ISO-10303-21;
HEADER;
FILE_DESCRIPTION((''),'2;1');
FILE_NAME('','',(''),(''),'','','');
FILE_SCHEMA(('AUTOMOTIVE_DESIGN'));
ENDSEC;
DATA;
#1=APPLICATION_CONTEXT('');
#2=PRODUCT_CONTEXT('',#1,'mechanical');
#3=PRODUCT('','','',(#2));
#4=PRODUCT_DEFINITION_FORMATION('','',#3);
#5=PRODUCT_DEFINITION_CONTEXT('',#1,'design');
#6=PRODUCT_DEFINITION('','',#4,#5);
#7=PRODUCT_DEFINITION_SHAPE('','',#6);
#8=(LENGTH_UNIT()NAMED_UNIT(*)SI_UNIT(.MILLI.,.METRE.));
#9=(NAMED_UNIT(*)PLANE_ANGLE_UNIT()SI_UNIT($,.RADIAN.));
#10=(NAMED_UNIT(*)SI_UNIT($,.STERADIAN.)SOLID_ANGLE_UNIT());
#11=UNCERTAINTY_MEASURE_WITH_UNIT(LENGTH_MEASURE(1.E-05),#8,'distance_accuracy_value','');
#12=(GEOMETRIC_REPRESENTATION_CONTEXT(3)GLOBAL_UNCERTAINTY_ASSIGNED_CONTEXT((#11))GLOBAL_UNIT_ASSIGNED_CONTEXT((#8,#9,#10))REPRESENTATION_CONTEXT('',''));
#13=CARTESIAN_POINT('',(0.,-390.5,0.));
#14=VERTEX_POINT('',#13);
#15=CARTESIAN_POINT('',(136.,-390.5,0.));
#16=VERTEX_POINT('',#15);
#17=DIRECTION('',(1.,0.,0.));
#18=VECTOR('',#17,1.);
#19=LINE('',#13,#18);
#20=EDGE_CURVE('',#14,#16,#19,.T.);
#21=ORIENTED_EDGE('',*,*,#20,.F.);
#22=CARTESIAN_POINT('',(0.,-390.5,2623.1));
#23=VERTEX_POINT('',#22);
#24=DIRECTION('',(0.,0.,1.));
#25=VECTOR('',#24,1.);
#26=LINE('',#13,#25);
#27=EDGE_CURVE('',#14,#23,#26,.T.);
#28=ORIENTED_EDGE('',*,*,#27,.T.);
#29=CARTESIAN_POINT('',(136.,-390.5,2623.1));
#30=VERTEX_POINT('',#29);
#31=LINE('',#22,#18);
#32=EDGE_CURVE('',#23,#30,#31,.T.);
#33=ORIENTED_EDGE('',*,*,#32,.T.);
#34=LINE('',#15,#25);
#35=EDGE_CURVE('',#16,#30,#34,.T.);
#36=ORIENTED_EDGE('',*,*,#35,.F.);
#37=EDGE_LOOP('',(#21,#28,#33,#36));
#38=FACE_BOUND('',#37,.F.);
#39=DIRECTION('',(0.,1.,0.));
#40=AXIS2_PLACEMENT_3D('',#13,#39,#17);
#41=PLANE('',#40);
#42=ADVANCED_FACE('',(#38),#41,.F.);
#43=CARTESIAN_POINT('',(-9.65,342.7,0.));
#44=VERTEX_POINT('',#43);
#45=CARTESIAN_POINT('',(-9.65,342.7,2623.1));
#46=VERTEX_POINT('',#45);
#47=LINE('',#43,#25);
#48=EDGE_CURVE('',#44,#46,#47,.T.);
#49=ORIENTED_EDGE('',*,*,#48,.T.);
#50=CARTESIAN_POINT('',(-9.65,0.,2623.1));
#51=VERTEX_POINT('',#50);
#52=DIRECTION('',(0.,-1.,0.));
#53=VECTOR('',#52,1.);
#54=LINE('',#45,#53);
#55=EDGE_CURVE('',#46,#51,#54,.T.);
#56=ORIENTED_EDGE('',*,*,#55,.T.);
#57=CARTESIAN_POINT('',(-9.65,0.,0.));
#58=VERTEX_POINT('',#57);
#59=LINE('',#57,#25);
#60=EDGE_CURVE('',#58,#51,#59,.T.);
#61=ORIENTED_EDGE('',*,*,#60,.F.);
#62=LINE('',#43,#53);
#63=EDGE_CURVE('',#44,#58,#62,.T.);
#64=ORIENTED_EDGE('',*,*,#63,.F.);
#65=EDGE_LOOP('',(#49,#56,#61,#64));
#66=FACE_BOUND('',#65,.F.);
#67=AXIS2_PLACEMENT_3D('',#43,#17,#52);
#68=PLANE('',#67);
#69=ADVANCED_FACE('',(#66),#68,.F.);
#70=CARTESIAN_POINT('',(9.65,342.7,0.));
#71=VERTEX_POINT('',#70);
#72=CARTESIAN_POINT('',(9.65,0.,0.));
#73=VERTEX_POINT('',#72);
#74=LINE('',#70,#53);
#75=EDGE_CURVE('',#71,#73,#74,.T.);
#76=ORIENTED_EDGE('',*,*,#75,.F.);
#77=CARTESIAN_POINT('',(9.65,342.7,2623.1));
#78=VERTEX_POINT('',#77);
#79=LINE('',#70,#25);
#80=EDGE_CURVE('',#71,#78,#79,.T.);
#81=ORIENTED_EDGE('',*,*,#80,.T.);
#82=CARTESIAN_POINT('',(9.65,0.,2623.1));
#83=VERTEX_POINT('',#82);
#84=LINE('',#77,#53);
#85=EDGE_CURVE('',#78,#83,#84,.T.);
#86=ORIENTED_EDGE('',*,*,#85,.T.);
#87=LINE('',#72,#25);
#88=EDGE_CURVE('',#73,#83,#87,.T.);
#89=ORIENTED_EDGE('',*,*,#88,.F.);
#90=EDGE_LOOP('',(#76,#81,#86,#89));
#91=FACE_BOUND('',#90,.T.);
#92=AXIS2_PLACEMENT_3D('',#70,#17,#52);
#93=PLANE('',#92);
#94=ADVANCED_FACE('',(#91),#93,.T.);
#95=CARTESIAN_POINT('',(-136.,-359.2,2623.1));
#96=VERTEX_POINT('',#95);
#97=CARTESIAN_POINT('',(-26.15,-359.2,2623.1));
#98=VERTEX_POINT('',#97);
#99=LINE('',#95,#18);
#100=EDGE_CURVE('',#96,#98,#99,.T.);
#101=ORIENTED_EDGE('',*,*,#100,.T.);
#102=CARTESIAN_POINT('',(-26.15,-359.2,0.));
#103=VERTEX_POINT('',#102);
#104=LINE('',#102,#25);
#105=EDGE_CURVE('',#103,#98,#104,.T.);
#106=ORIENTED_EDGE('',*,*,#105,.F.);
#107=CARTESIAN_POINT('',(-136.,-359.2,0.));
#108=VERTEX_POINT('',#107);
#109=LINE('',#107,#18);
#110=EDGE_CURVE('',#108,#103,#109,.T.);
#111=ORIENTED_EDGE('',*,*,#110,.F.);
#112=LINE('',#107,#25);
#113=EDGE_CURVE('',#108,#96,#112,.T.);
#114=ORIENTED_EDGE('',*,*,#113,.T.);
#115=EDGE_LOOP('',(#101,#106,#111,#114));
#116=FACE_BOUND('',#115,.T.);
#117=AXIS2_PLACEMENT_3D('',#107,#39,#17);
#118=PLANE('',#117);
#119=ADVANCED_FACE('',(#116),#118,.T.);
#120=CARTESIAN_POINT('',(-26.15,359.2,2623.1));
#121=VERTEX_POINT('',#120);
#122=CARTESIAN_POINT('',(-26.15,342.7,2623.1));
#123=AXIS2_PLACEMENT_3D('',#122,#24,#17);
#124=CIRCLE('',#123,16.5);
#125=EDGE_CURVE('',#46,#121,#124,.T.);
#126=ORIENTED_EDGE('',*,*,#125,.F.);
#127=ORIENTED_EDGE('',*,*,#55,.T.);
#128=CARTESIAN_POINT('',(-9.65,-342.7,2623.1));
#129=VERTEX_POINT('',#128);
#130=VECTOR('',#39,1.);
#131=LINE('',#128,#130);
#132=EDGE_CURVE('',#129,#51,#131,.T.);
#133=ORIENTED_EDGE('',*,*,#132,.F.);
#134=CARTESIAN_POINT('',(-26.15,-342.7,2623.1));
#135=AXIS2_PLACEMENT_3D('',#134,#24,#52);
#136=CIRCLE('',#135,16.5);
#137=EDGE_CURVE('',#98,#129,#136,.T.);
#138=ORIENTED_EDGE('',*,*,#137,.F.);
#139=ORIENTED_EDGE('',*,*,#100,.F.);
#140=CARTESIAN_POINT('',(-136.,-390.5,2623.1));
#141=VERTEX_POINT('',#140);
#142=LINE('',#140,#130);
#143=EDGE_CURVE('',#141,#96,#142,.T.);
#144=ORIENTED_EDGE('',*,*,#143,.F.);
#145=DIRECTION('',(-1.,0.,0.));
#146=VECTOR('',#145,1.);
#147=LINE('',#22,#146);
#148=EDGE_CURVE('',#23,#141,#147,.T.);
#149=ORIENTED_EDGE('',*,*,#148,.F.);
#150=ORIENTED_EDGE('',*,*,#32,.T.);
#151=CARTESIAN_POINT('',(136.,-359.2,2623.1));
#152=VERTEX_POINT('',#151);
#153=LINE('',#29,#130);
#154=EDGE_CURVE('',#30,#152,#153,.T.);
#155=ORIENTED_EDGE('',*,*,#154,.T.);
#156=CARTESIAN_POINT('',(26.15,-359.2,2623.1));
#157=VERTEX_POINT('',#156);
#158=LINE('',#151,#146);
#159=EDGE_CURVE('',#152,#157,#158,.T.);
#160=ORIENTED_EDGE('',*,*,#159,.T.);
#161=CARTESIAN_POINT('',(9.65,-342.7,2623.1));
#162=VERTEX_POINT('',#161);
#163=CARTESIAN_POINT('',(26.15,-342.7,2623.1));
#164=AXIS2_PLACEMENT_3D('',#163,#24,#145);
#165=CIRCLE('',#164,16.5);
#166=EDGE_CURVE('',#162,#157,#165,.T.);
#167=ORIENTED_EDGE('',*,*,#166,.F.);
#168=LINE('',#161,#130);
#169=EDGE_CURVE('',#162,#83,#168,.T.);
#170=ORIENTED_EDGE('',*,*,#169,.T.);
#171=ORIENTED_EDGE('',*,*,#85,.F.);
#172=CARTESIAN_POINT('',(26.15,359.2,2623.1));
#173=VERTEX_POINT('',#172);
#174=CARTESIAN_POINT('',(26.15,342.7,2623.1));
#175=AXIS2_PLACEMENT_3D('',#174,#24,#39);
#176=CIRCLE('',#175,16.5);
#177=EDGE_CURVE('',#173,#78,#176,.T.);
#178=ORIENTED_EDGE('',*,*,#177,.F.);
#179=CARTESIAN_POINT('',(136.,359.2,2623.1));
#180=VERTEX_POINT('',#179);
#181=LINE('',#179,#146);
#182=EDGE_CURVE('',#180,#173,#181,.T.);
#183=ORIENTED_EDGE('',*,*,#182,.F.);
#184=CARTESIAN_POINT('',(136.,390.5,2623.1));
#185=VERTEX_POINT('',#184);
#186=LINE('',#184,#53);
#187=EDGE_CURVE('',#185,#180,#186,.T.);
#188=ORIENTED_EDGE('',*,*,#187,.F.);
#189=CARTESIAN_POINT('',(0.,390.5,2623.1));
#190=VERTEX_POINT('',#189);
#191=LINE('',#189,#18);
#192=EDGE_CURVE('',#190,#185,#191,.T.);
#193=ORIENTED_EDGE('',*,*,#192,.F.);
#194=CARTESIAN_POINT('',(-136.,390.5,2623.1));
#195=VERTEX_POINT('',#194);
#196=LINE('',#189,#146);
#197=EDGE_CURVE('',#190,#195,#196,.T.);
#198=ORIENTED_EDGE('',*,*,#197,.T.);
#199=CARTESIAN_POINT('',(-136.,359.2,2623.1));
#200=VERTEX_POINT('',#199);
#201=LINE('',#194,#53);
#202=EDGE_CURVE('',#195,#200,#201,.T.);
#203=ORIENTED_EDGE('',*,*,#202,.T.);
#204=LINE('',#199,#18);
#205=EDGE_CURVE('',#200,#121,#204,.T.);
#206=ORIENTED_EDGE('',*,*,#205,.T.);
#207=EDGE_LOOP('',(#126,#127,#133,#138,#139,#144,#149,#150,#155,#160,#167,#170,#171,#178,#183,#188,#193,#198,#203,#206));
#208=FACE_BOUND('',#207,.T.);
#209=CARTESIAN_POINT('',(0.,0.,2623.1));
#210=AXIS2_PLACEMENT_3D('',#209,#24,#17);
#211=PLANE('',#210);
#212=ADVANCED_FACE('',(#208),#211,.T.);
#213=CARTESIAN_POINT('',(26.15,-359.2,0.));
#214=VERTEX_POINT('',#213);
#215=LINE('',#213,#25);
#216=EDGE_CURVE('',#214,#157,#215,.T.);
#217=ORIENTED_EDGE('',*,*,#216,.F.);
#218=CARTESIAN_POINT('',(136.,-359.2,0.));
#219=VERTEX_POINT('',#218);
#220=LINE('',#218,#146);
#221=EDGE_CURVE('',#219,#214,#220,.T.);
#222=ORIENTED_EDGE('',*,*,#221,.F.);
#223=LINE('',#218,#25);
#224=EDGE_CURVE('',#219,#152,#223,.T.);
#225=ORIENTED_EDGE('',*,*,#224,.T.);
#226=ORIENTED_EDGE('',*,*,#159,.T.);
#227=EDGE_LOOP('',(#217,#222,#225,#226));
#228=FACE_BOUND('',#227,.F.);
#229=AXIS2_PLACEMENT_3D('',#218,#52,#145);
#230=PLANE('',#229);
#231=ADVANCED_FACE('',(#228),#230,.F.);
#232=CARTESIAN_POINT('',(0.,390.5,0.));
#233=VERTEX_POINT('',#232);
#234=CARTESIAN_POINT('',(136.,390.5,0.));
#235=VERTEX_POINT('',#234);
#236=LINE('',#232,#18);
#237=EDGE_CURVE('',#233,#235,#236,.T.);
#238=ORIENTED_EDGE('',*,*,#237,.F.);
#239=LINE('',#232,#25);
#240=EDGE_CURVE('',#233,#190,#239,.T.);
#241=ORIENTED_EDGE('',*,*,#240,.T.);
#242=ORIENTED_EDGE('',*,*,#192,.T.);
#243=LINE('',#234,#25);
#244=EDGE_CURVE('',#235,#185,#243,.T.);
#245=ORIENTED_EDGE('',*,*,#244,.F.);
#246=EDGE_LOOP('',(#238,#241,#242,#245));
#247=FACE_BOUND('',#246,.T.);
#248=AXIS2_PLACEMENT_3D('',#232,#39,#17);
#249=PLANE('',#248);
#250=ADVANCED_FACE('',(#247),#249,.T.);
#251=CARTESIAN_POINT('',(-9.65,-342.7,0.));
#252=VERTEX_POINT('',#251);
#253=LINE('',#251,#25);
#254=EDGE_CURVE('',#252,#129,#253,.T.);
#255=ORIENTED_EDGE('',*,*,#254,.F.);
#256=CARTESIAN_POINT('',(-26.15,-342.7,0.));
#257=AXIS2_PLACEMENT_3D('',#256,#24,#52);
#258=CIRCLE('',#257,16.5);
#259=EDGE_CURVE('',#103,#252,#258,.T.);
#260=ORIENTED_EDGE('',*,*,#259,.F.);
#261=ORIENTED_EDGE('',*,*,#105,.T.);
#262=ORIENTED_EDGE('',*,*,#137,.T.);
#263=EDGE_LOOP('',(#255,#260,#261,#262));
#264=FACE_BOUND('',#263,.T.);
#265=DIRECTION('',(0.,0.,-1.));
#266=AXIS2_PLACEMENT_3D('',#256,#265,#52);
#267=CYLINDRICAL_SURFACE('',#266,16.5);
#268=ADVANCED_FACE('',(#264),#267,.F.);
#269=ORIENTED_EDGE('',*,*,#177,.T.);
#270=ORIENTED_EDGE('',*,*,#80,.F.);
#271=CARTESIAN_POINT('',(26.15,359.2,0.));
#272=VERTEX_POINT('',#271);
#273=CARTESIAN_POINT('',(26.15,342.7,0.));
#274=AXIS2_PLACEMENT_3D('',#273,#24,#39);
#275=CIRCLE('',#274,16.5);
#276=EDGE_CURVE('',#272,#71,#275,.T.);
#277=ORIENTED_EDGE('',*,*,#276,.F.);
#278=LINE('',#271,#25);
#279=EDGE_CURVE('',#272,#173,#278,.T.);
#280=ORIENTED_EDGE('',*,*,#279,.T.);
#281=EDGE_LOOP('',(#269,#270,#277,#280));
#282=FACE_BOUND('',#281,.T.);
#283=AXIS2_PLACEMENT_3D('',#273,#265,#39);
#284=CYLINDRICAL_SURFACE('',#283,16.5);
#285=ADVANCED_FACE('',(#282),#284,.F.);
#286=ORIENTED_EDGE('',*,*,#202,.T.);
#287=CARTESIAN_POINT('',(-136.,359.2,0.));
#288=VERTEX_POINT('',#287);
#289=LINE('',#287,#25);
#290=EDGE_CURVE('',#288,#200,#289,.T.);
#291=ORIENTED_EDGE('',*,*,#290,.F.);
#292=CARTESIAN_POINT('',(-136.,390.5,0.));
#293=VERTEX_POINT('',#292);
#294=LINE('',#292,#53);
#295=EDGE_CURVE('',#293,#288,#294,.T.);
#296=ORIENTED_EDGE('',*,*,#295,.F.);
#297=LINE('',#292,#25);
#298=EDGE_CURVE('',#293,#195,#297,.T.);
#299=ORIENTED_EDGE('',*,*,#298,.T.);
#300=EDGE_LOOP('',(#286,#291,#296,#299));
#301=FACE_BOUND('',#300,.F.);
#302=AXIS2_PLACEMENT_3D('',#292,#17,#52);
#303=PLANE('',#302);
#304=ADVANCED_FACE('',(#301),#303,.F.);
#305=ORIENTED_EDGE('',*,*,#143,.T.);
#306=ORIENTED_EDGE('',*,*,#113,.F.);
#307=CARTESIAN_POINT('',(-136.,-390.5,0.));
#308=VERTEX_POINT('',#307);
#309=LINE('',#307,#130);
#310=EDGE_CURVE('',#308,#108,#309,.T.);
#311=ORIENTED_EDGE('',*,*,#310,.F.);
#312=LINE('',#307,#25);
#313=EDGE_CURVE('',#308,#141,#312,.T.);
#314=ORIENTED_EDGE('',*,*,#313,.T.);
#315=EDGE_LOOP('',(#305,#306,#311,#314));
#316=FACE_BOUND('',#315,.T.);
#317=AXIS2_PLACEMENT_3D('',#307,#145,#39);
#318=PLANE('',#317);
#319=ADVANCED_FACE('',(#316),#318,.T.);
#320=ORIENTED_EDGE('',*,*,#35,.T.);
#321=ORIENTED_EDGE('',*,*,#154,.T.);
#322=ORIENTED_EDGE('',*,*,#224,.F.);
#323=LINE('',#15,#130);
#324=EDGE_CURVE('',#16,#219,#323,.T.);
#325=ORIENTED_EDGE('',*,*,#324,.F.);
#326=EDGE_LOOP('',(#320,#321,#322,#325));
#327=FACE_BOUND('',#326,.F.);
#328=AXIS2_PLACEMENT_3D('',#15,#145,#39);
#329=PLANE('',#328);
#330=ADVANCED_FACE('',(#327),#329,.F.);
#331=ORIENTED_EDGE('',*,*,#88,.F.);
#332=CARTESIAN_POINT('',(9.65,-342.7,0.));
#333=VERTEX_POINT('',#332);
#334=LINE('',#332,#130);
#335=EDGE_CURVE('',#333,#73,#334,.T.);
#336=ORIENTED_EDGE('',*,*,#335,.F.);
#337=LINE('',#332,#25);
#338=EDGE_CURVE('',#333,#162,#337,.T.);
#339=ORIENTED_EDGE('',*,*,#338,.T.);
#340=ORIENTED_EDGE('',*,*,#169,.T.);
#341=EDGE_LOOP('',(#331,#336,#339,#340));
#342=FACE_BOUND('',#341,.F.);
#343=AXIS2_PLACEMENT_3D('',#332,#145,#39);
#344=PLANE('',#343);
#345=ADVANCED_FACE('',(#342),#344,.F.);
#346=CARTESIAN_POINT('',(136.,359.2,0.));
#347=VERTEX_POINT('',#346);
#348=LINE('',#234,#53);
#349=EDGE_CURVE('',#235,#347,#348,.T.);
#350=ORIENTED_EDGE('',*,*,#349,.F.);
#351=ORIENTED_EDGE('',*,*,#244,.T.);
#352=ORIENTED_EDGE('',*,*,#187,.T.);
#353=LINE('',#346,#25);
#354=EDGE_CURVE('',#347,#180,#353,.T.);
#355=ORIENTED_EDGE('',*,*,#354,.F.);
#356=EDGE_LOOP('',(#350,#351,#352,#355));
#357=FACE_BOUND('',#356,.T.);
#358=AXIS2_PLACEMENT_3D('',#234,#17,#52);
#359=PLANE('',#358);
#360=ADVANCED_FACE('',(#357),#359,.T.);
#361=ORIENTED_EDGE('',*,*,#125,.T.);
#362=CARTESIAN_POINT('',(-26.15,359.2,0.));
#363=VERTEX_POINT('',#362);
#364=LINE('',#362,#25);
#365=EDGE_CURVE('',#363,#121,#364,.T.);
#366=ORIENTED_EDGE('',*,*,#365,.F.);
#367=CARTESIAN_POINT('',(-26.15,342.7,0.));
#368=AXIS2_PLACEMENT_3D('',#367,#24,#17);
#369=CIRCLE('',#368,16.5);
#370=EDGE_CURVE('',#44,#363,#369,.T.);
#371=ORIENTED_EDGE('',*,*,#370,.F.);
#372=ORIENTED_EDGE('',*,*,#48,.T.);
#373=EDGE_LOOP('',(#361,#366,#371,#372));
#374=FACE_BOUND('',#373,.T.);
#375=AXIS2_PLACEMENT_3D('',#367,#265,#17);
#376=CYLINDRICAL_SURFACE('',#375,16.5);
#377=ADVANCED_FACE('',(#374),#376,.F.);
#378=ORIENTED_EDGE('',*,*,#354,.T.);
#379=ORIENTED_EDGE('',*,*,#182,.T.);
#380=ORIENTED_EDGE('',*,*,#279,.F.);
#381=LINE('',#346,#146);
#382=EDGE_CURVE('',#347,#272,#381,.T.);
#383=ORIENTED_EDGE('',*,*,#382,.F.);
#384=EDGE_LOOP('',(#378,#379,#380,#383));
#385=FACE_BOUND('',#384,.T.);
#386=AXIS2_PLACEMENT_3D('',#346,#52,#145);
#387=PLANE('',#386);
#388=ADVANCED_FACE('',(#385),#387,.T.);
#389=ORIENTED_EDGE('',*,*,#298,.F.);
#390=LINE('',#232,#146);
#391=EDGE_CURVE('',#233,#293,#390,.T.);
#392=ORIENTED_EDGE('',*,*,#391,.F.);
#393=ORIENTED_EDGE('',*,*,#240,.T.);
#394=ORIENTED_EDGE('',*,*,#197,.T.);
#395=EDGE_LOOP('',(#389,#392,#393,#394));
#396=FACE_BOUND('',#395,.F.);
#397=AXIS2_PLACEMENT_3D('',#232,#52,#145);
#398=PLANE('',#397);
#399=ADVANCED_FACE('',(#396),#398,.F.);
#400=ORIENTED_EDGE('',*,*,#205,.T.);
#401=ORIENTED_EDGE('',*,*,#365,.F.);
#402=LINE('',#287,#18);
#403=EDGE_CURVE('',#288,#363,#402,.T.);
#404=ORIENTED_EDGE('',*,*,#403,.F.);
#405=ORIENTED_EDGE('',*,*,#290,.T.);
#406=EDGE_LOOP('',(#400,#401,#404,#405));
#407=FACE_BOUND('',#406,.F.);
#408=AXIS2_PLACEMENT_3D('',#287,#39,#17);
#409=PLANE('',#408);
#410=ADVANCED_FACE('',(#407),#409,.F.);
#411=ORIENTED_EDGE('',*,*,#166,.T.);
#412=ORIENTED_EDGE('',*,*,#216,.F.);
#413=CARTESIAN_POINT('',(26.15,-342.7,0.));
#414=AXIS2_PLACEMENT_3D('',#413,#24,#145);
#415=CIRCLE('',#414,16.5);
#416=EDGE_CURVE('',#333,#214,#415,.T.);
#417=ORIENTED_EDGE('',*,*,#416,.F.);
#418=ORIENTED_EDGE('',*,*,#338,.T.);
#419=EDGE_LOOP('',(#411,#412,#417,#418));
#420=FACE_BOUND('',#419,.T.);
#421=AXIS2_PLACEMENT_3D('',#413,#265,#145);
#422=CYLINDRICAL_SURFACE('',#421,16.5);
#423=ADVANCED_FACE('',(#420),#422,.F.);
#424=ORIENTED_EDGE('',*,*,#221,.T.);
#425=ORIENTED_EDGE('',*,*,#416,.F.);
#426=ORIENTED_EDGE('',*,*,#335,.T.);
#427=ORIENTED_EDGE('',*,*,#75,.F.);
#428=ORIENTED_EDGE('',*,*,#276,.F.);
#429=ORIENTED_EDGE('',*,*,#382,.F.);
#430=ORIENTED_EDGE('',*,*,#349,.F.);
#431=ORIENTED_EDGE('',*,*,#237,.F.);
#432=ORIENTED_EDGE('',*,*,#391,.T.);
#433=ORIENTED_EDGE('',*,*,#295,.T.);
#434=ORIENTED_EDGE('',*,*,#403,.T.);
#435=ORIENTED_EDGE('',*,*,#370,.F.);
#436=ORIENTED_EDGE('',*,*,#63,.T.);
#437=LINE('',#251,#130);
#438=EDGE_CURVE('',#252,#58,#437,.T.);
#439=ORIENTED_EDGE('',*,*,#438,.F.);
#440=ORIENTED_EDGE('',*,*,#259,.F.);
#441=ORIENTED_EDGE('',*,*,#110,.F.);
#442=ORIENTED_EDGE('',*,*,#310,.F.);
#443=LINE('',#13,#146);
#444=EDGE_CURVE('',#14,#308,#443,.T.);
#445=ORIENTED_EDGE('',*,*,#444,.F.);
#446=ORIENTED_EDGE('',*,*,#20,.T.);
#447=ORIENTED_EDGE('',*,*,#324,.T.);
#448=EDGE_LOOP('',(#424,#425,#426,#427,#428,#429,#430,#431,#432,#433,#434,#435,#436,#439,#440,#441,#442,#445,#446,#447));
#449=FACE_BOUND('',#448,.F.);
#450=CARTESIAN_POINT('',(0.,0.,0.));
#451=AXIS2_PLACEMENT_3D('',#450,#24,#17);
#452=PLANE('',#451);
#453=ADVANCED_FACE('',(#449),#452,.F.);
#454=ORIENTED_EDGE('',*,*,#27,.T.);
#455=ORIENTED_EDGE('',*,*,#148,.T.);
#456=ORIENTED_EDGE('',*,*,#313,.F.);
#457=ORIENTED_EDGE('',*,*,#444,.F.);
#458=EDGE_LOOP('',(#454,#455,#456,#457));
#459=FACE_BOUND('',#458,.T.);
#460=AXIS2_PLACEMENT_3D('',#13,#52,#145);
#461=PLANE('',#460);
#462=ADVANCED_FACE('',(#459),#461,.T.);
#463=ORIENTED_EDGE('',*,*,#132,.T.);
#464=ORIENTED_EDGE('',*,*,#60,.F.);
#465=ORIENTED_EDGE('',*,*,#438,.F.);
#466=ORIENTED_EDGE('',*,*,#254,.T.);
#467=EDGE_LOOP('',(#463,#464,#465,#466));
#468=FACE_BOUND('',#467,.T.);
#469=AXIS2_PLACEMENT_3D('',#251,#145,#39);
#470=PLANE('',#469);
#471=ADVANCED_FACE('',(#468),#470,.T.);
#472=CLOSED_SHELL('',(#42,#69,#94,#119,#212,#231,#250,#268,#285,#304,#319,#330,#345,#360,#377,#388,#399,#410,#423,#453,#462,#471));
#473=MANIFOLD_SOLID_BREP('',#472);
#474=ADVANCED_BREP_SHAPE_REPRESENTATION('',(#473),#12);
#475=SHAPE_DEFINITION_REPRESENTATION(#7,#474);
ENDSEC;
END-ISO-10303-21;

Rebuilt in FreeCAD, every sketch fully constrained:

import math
import FreeCAD as App
import Part
import Sketcher

V = App.Vector

doc = App.newDocument("Part")
body = doc.addObject("PartDesign::Body", "Body")

# Sketch on XY plane
sketch1 = body.newObject("Sketcher::SketchObject", "Sketch")
sketch1.AttachmentSupport = (doc.getObject("XY_Plane"), [""])
sketch1.MapMode = "FlatFace"
sketch1.addGeometry([
    Part.LineSegment(V(-136, -359, 0), V(-136, -390, 0)),  # 0
    Part.LineSegment(V(-136, -390, 0), V(136, -390, 0)),  # 1
    Part.LineSegment(V(136, -390, 0), V(136, -359, 0)),  # 2
    Part.LineSegment(V(136, -359, 0), V(26, -359, 0)),  # 3
    Part.ArcOfCircle(Part.Circle(V(26, -343, 0), V(0, 0, 1), 16), math.radians(180), math.radians(270)),  # 4
    Part.LineSegment(V(10, -343, 0), V(10, 343, 0)),  # 5
    Part.ArcOfCircle(Part.Circle(V(26, 343, 0), V(0, 0, 1), 16), math.radians(90), math.radians(180)),  # 6
    Part.LineSegment(V(26, 359, 0), V(136, 359, 0)),  # 7
    Part.LineSegment(V(136, 359, 0), V(136, 390, 0)),  # 8
    Part.LineSegment(V(136, 390, 0), V(-136, 390, 0)),  # 9
    Part.LineSegment(V(-136, 390, 0), V(-136, 359, 0)),  # 10
    Part.LineSegment(V(-136, 359, 0), V(-26, 359, 0)),  # 11
    Part.ArcOfCircle(Part.Circle(V(-26, 343, 0), V(0, 0, 1), 16), math.radians(0), math.radians(90)),  # 12
    Part.LineSegment(V(-10, 343, 0), V(-10, -343, 0)),  # 13
    Part.ArcOfCircle(Part.Circle(V(-26, -343, 0), V(0, 0, 1), 16), math.radians(-90), math.radians(0)),  # 14
    Part.LineSegment(V(-26, -359, 0), V(-136, -359, 0)),  # 15
], False)
sketch1.addConstraint([
    Sketcher.Constraint("Coincident", 0, 2, 1, 1),
    Sketcher.Constraint("Coincident", 1, 2, 2, 1),
    Sketcher.Constraint("Coincident", 2, 2, 3, 1),
    Sketcher.Constraint("Tangent", 3, 2, 4, 2),
    Sketcher.Constraint("Tangent", 4, 1, 5, 1),
    Sketcher.Constraint("Tangent", 5, 2, 6, 2),
    Sketcher.Constraint("Tangent", 6, 1, 7, 1),
    Sketcher.Constraint("Coincident", 7, 2, 8, 1),
    Sketcher.Constraint("Coincident", 8, 2, 9, 1),
    Sketcher.Constraint("Coincident", 9, 2, 10, 1),
    Sketcher.Constraint("Coincident", 10, 2, 11, 1),
    Sketcher.Constraint("Tangent", 11, 2, 12, 2),
    Sketcher.Constraint("Tangent", 12, 1, 13, 1),
    Sketcher.Constraint("Tangent", 13, 2, 14, 2),
    Sketcher.Constraint("Tangent", 14, 1, 15, 1),
    Sketcher.Constraint("Coincident", 15, 2, 0, 1),
    Sketcher.Constraint("Vertical", 0),
    Sketcher.Constraint("Horizontal", 1),
    Sketcher.Constraint("Vertical", 2),
    Sketcher.Constraint("Horizontal", 3),
    Sketcher.Constraint("Vertical", 5),
    Sketcher.Constraint("Horizontal", 7),
    Sketcher.Constraint("Vertical", 8),
    Sketcher.Constraint("Horizontal", 9),
    Sketcher.Constraint("Vertical", 10),
    Sketcher.Constraint("Horizontal", 11),
    Sketcher.Constraint("Vertical", 13),
    Sketcher.Constraint("Horizontal", 15),
    Sketcher.Constraint("Equal", 4, 6),
    Sketcher.Constraint("Equal", 6, 12),
    Sketcher.Constraint("Equal", 12, 14),
    Sketcher.Constraint("Symmetric", 4, 3, 12, 3, -1, 1),
    Sketcher.Constraint("Symmetric", 0, 2, 8, 2, -1, 1),
    Sketcher.Constraint("Symmetric", 7, 2, 10, 2, -2),
    Sketcher.Constraint("Symmetric", 2, 2, 15, 2, -2),
    Sketcher.Constraint("Radius", 4, 16.5),
    Sketcher.Constraint("DistanceY", 0, 2, 0, 1, 31.3),
    Sketcher.Constraint("DistanceX", 0, 2, -1, 1, 136.0),
    Sketcher.Constraint("DistanceY", 0, 2, -1, 1, 390.5),
    Sketcher.Constraint("DistanceX", -1, 1, 4, 1, 9.65),
])
pad1 = body.newObject("PartDesign::Pad", "Pad")
pad1.Profile = sketch1
pad1.Length = 2623.1

doc.recompute()
